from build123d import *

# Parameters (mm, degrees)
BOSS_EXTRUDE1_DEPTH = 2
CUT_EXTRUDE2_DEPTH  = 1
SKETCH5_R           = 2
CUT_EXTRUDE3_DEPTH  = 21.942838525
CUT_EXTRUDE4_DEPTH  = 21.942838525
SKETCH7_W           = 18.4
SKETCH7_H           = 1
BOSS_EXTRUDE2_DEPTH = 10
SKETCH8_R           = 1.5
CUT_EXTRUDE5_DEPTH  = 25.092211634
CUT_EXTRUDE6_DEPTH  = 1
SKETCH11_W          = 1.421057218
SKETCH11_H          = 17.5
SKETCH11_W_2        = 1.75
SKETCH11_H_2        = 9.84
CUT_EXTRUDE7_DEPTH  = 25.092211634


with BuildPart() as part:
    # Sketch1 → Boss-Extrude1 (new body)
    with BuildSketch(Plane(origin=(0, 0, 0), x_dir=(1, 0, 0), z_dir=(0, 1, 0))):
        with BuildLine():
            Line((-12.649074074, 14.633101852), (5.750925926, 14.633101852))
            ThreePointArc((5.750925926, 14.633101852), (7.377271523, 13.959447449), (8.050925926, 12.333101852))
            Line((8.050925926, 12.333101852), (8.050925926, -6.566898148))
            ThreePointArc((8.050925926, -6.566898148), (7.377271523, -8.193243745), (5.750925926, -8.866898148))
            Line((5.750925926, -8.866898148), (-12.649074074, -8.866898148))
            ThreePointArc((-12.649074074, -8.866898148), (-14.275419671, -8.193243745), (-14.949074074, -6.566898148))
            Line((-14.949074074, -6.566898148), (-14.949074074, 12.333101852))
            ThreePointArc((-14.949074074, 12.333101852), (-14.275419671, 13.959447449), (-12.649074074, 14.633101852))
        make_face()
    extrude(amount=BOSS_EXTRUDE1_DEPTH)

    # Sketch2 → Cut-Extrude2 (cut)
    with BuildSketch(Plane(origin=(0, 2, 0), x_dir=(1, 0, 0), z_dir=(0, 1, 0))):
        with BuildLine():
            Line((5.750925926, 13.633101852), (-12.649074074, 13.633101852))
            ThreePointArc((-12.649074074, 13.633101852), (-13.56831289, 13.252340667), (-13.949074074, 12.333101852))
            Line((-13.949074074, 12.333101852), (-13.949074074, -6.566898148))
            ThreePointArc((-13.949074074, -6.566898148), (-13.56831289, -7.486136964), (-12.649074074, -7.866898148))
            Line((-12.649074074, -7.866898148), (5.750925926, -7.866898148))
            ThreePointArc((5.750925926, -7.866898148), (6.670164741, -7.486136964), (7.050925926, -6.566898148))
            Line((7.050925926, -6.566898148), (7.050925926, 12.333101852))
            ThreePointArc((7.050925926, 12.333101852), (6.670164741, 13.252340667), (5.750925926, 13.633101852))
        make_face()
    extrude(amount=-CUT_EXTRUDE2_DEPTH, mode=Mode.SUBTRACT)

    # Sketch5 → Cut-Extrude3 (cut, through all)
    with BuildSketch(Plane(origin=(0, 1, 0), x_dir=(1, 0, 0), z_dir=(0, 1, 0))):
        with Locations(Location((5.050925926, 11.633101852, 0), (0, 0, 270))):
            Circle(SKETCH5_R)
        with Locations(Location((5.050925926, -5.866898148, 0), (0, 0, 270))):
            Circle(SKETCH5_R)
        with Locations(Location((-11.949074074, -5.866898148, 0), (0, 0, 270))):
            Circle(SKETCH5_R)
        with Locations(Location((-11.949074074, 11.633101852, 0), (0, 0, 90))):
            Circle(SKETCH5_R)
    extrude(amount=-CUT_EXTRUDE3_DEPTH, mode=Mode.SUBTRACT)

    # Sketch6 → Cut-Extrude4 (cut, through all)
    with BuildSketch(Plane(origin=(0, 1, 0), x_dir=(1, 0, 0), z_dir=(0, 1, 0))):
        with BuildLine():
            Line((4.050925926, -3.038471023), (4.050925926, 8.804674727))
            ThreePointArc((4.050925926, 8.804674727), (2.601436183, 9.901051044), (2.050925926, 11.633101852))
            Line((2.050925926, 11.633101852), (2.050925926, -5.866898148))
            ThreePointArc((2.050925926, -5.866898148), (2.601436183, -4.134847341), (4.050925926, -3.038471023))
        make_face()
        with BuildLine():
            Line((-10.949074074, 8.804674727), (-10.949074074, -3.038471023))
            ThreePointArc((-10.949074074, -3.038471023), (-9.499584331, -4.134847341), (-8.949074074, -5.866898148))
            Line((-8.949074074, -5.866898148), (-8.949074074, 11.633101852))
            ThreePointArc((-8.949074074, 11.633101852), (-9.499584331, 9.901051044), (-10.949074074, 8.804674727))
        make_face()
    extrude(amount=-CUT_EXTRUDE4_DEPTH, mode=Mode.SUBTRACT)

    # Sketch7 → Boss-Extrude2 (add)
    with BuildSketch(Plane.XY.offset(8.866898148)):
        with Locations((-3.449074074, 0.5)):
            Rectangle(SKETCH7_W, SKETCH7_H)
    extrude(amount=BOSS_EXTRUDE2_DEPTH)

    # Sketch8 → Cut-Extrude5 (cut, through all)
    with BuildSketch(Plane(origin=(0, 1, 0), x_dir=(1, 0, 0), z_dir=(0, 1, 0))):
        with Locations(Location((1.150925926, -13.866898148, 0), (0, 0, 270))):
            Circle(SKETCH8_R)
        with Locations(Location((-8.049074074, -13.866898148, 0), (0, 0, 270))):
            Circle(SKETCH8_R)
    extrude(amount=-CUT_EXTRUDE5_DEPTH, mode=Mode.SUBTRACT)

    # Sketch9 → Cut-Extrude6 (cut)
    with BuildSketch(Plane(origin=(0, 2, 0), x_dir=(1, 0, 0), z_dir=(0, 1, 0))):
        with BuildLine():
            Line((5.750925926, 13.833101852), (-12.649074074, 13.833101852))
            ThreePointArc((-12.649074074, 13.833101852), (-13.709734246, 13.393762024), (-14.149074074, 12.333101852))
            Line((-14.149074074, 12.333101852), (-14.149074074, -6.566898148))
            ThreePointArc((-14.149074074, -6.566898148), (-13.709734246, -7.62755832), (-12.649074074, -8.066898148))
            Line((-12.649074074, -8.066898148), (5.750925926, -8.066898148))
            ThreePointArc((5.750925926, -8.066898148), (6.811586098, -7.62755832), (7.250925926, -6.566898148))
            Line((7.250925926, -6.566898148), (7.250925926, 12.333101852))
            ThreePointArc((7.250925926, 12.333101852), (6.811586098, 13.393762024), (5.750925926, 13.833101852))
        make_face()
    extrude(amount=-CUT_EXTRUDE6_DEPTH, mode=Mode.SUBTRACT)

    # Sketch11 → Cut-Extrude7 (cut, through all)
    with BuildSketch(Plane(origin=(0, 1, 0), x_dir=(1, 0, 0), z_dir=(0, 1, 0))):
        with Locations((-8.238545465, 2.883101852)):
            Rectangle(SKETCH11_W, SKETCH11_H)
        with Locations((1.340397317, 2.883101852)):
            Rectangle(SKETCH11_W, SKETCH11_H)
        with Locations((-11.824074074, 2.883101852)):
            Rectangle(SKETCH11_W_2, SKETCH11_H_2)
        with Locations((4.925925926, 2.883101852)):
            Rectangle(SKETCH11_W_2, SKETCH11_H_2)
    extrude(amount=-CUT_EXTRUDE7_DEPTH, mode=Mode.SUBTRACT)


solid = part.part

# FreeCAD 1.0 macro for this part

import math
import FreeCAD as App
import Part
import Sketcher

V = App.Vector


def add_polygon(sketch, points):
    """Adds a closed chain of lines whose ends are joined by coincident constraints."""
    first, n = sketch.GeometryCount, len(points)
    for a, b in zip(points, points[1:] + points[:1]):
        sketch.addGeometry(Part.LineSegment(App.Vector(*a, 0), App.Vector(*b, 0)), False)
    for i in range(n):
        sketch.addConstraint(Sketcher.Constraint("Coincident", first + i, 2, first + (i + 1) % n, 1))

doc = App.newDocument("Part")
params = doc.addObject("Spreadsheet::Sheet", "Params")
for row, (alias, value) in enumerate([
    ("sketch1_radius", "2.3 mm"),
    ("sketch1_width", "18.4 mm"),
    ("sketch1_height", "18.9 mm"),
    ("pad1_length", "2 mm"),
    ("sketch2_radius", "1.3 mm"),
    ("sketch2_width", "18.4 mm"),
    ("sketch2_height", "18.9 mm"),
    ("pocket1_length", "1 mm"),
    ("sketch3_diameter", "4 mm"),
    ("sketch4_radius", "3 mm"),
    ("sketch4_height", "17.5 mm"),
    ("sketch5_height", "1 mm"),
    ("sketch5_width", "18.4 mm"),
    ("pad2_length", "10 mm"),
    ("sketch6_diameter", "3 mm"),
    ("sketch7_radius", "1.5 mm"),
    ("sketch7_width", "18.4 mm"),
    ("sketch7_height", "18.9 mm"),
    ("pocket5_length", "1 mm"),
    ("sketch8_height", "17.5 mm"),
    ("sketch8_width", "1.75 mm"),
    ("sketch8_height2", "9.84 mm"),
], start=1):
    params.set(f"A{row}", alias)
    params.set(f"B{row}", "=" + value)
    params.setAlias(f"B{row}", alias)

body = doc.addObject("PartDesign::Body", "Body")

sketch1 = body.newObject("Sketcher::SketchObject", "Sketch")
sketch1.AttachmentSupport = (doc.getObject("XZ_Plane"), [""])
sketch1.MapMode = "FlatFace"
sketch1.addGeometry([
    Part.LineSegment(V(5.750926, -14.633102, 0), V(-12.649074, -14.633102, 0)),
    Part.ArcOfCircle(Part.Circle(V(-12.649074, -12.333102, 0), V(0, 0, 1), 2.3), math.radians(180), math.radians(270)),
    Part.LineSegment(V(-14.949074, -12.333102, 0), V(-14.949074, 6.566898, 0)),
    Part.ArcOfCircle(Part.Circle(V(-12.649074, 6.566898, 0), V(0, 0, 1), 2.3), math.radians(90), math.radians(180)),
    Part.LineSegment(V(-12.649074, 8.866898, 0), V(5.750926, 8.866898, 0)),
    Part.ArcOfCircle(Part.Circle(V(5.750926, 6.566898, 0), V(0, 0, 1), 2.3), math.radians(0), math.radians(90)),
    Part.LineSegment(V(8.050926, 6.566898, 0), V(8.050926, -12.333102, 0)),
    Part.ArcOfCircle(Part.Circle(V(5.750926, -12.333102, 0), V(0, 0, 1), 2.3), math.radians(-90), math.radians(0)),
], False)
sketch1.addConstraint([
    Sketcher.Constraint("Tangent", 0, 2, 1, 2),
    Sketcher.Constraint("Tangent", 1, 1, 2, 1),
    Sketcher.Constraint("Tangent", 2, 2, 3, 2),
    Sketcher.Constraint("Tangent", 3, 1, 4, 1),
    Sketcher.Constraint("Tangent", 4, 2, 5, 2),
    Sketcher.Constraint("Tangent", 5, 1, 6, 1),
    Sketcher.Constraint("Tangent", 6, 2, 7, 2),
    Sketcher.Constraint("Tangent", 7, 1, 0, 1),
    Sketcher.Constraint("Horizontal", 0),
    Sketcher.Constraint("Vertical", 2),
    Sketcher.Constraint("Horizontal", 4),
    Sketcher.Constraint("Vertical", 6),
    Sketcher.Constraint("Equal", 1, 3),
    Sketcher.Constraint("Equal", 3, 5),
    Sketcher.Constraint("Equal", 5, 7),
    Sketcher.Constraint("Radius", 1, 2.3),
    Sketcher.Constraint("DistanceX", 0, 2, 0, 1, 18.4),
    Sketcher.Constraint("DistanceY", 2, 1, 2, 2, 18.9),
    Sketcher.Constraint("DistanceY", 1, 3, -1, 1, 12.333102),
    Sketcher.Constraint("DistanceX", 1, 3, -1, 1, 12.649074),
])
sketch1.setExpression("Constraints[15]", "Params.sketch1_radius")
sketch1.setExpression("Constraints[16]", "Params.sketch1_width")
sketch1.setExpression("Constraints[17]", "Params.sketch1_height")
pad1 = body.newObject("PartDesign::Pad", "Pad")
pad1.Profile = sketch1
pad1.setExpression("Length", "Params.pad1_length")
pad1.Reversed = True

sketch2 = body.newObject("Sketcher::SketchObject", "Sketch001")
sketch2.AttachmentSupport = (doc.getObject("XZ_Plane"), [""])
sketch2.MapMode = "FlatFace"
sketch2.AttachmentOffset = App.Placement(V(0, 0, -2), App.Rotation())
sketch2.addGeometry([
    Part.LineSegment(V(5.750926, -13.633102, 0), V(-12.649074, -13.633102, 0)),
    Part.ArcOfCircle(Part.Circle(V(-12.649074, -12.333102, 0), V(0, 0, 1), 1.3), math.radians(180), math.radians(270)),
    Part.LineSegment(V(-13.949074, -12.333102, 0), V(-13.949074, 6.566898, 0)),
    Part.ArcOfCircle(Part.Circle(V(-12.649074, 6.566898, 0), V(0, 0, 1), 1.3), math.radians(90), math.radians(180)),
    Part.LineSegment(V(-12.649074, 7.866898, 0), V(5.750926, 7.866898, 0)),
    Part.ArcOfCircle(Part.Circle(V(5.750926, 6.566898, 0), V(0, 0, 1), 1.3), math.radians(0), math.radians(90)),
    Part.LineSegment(V(7.050926, 6.566898, 0), V(7.050926, -12.333102, 0)),
    Part.ArcOfCircle(Part.Circle(V(5.750926, -12.333102, 0), V(0, 0, 1), 1.3), math.radians(-90), math.radians(0)),
], False)
sketch2.addConstraint([
    Sketcher.Constraint("Tangent", 0, 2, 1, 2),
    Sketcher.Constraint("Tangent", 1, 1, 2, 1),
    Sketcher.Constraint("Tangent", 2, 2, 3, 2),
    Sketcher.Constraint("Tangent", 3, 1, 4, 1),
    Sketcher.Constraint("Tangent", 4, 2, 5, 2),
    Sketcher.Constraint("Tangent", 5, 1, 6, 1),
    Sketcher.Constraint("Tangent", 6, 2, 7, 2),
    Sketcher.Constraint("Tangent", 7, 1, 0, 1),
    Sketcher.Constraint("Horizontal", 0),
    Sketcher.Constraint("Vertical", 2),
    Sketcher.Constraint("Horizontal", 4),
    Sketcher.Constraint("Vertical", 6),
    Sketcher.Constraint("Equal", 1, 3),
    Sketcher.Constraint("Equal", 3, 5),
    Sketcher.Constraint("Equal", 5, 7),
    Sketcher.Constraint("Radius", 1, 1.3),
    Sketcher.Constraint("DistanceX", 0, 2, 0, 1, 18.4),
    Sketcher.Constraint("DistanceY", 2, 1, 2, 2, 18.9),
    Sketcher.Constraint("DistanceY", 1, 3, -1, 1, 12.333102),
    Sketcher.Constraint("DistanceX", 1, 3, -1, 1, 12.649074),
])
sketch2.setExpression("Constraints[15]", "Params.sketch2_radius")
sketch2.setExpression("Constraints[16]", "Params.sketch2_width")
sketch2.setExpression("Constraints[17]", "Params.sketch2_height")
pocket1 = body.newObject("PartDesign::Pocket", "Pocket")
pocket1.Profile = sketch2
pocket1.setExpression("Length", "Params.pocket1_length")
pocket1.Reversed = True

sketch3 = body.newObject("Sketcher::SketchObject", "Sketch002")
sketch3.AttachmentSupport = (doc.getObject("XZ_Plane"), [""])
sketch3.MapMode = "FlatFace"
sketch3.AttachmentOffset = App.Placement(V(0, 0, -1), App.Rotation())
sketch3.addGeometry([
    Part.Circle(V(5.050926, -11.633102, 0), V(0, 0, 1), 2),
    Part.Circle(V(5.050926, 5.866898, 0), V(0, 0, 1), 2),
    Part.Circle(V(-11.949074, 5.866898, 0), V(0, 0, 1), 2),
    Part.Circle(V(-11.949074, -11.633102, 0), V(0, 0, 1), 2),
], False)
sketch3.addConstraint([
    Sketcher.Constraint("Equal", 0, 1),
    Sketcher.Constraint("Equal", 1, 2),
    Sketcher.Constraint("Equal", 2, 3),
    Sketcher.Constraint("Horizontal", 1, 3, 2, 3),
    Sketcher.Constraint("Horizontal", 0, 3, 3, 3),
    Sketcher.Constraint("Vertical", 0, 3, 1, 3),
    Sketcher.Constraint("Vertical", 2, 3, 3, 3),
    Sketcher.Constraint("Diameter", 0, 4.0),
    Sketcher.Constraint("DistanceX", 2, 3, 1, 3, 17.0),
    Sketcher.Constraint("DistanceY", 0, 3, 1, 3, 17.5),
    Sketcher.Constraint("DistanceY", 0, 3, -1, 1, 11.633102),
    Sketcher.Constraint("DistanceX", -1, 1, 0, 3, 5.050926),
])
sketch3.setExpression("Constraints[7]", "Params.sketch3_diameter")
pocket2 = body.newObject("PartDesign::Pocket", "Pocket001")
pocket2.Profile = sketch3
pocket2.Type = "ThroughAll"
pocket2.Reversed = True

sketch4 = body.newObject("Sketcher::SketchObject", "Sketch003")
sketch4.AttachmentSupport = (doc.getObject("XZ_Plane"), [""])
sketch4.MapMode = "FlatFace"
sketch4.AttachmentOffset = App.Placement(V(0, 0, -1), App.Rotation())
sketch4.addGeometry([
    Part.LineSegment(V(4.050926, 3.038471, 0), V(4.050926, -8.804675, 0)),
    Part.ArcOfCircle(Part.Circle(V(5.050926, -11.633102, 0), V(0, 0, 1), 3), math.radians(109.471221), math.radians(180)),
    Part.LineSegment(V(2.050926, -11.633102, 0), V(2.050926, 5.866898, 0)),
    Part.ArcOfCircle(Part.Circle(V(5.050926, 5.866898, 0), V(0, 0, 1), 3), math.radians(-180), math.radians(-109.471221)),
    Part.LineSegment(V(-10.949074, -8.804675, 0), V(-10.949074, 3.038471, 0)),
    Part.ArcOfCircle(Part.Circle(V(-11.949074, 5.866898, 0), V(0, 0, 1), 3), math.radians(-70.528779), math.radians(0)),
    Part.LineSegment(V(-8.949074, 5.866898, 0), V(-8.949074, -11.633102, 0)),
    Part.ArcOfCircle(Part.Circle(V(-11.949074, -11.633102, 0), V(0, 0, 1), 3), math.radians(0), math.radians(70.528779)),
], False)
sketch4.addConstraint([
    Sketcher.Constraint("Coincident", 0, 2, 1, 1),
    Sketcher.Constraint("Tangent", 1, 2, 2, 1),
    Sketcher.Constraint("Tangent", 2, 2, 3, 1),
    Sketcher.Constraint("Coincident", 3, 2, 0, 1),
    Sketcher.Constraint("Coincident", 4, 2, 5, 1),
    Sketcher.Constraint("Tangent", 5, 2, 6, 1),
    Sketcher.Constraint("Tangent", 6, 2, 7, 1),
    Sketcher.Constraint("Coincident", 7, 2, 4, 1),
    Sketcher.Constraint("Vertical", 0),
    Sketcher.Constraint("Vertical", 2),
    Sketcher.Constraint("Vertical", 4),
    Sketcher.Constraint("Vertical", 6),
    Sketcher.Constraint("Equal", 1, 3),
    Sketcher.Constraint("Equal", 3, 5),
    Sketcher.Constraint("Equal", 5, 7),
    Sketcher.Constraint("Horizontal", 3, 3, 5, 3),
    Sketcher.Constraint("Horizontal", 1, 3, 7, 3),
    Sketcher.Constraint("Horizontal", 3, 2, 4, 2),
    Sketcher.Constraint("Radius", 1, 3.0),
    Sketcher.Constraint("DistanceY", 2, 1, 2, 2, 17.5),
    Sketcher.Constraint("DistanceX", 5, 3, 3, 3, 17.0),
    Sketcher.Constraint("DistanceX", 0, 2, 1, 3, 1.0),
    Sketcher.Constraint("DistanceY", 1, 3, -1, 1, 11.633102),
    Sketcher.Constraint("DistanceX", -1, 1, 1, 3, 5.050926),
])
sketch4.setExpression("Constraints[18]", "Params.sketch4_radius")
sketch4.setExpression("Constraints[19]", "Params.sketch4_height")
pocket3 = body.newObject("PartDesign::Pocket", "Pocket002")
pocket3.Profile = sketch4
pocket3.Type = "ThroughAll"
pocket3.Reversed = True

sketch5 = body.newObject("Sketcher::SketchObject", "Sketch004")
sketch5.AttachmentSupport = (doc.getObject("XY_Plane"), [""])
sketch5.MapMode = "FlatFace"
sketch5.AttachmentOffset = App.Placement(V(0, 0, 8.866898), App.Rotation())
add_polygon(sketch5, [(-12.649074, 1), (-12.649074, 0), (5.750926, 0), (5.750926, 1)])
sketch5.addConstraint([
    Sketcher.Constraint("Vertical", 0),
    Sketcher.Constraint("Horizontal", 1),
    Sketcher.Constraint("Vertical", 2),
    Sketcher.Constraint("Horizontal", 3),
    Sketcher.Constraint("PointOnObject", 0, 2, -1),
    Sketcher.Constraint("DistanceY", 0, 2, 0, 1, 1.0),
    Sketcher.Constraint("DistanceX", 1, 1, 1, 2, 18.4),
    Sketcher.Constraint("DistanceX", 0, 2, -1, 1, 12.649074),
])
sketch5.setExpression("Constraints[9]", "Params.sketch5_height")
sketch5.setExpression("Constraints[10]", "Params.sketch5_width")
pad2 = body.newObject("PartDesign::Pad", "Pad001")
pad2.Profile = sketch5
pad2.setExpression("Length", "Params.pad2_length")

sketch6 = body.newObject("Sketcher::SketchObject", "Sketch005")
sketch6.AttachmentSupport = (doc.getObject("XZ_Plane"), [""])
sketch6.MapMode = "FlatFace"
sketch6.AttachmentOffset = App.Placement(V(0, 0, -1), App.Rotation())
sketch6.addGeometry([
    Part.Circle(V(1.150926, 13.866898, 0), V(0, 0, 1), 1.5),
    Part.Circle(V(-8.049074, 13.866898, 0), V(0, 0, 1), 1.5),
], False)
sketch6.addConstraint([
    Sketcher.Constraint("Equal", 0, 1),
    Sketcher.Constraint("Horizontal", 0, 3, 1, 3),
    Sketcher.Constraint("Diameter", 0, 3.0),
    Sketcher.Constraint("DistanceX", 1, 3, 0, 3, 9.2),
    Sketcher.Constraint("DistanceY", -1, 1, 0, 3, 13.866898),
    Sketcher.Constraint("DistanceX", -1, 1, 0, 3, 1.150926),
])
sketch6.setExpression("Constraints[2]", "Params.sketch6_diameter")
pocket4 = body.newObject("PartDesign::Pocket", "Pocket003")
pocket4.Profile = sketch6
pocket4.Type = "ThroughAll"
pocket4.Reversed = True

sketch7 = body.newObject("Sketcher::SketchObject", "Sketch006")
sketch7.AttachmentSupport = (doc.getObject("XZ_Plane"), [""])
sketch7.MapMode = "FlatFace"
sketch7.AttachmentOffset = App.Placement(V(0, 0, -2), App.Rotation())
sketch7.addGeometry([
    Part.LineSegment(V(5.750926, -13.833102, 0), V(-12.649074, -13.833102, 0)),
    Part.ArcOfCircle(Part.Circle(V(-12.649074, -12.333102, 0), V(0, 0, 1), 1.5), math.radians(180), math.radians(270)),
    Part.LineSegment(V(-14.149074, -12.333102, 0), V(-14.149074, 6.566898, 0)),
    Part.ArcOfCircle(Part.Circle(V(-12.649074, 6.566898, 0), V(0, 0, 1), 1.5), math.radians(90), math.radians(180)),
    Part.LineSegment(V(-12.649074, 8.066898, 0), V(5.750926, 8.066898, 0)),
    Part.ArcOfCircle(Part.Circle(V(5.750926, 6.566898, 0), V(0, 0, 1), 1.5), math.radians(0), math.radians(90)),
    Part.LineSegment(V(7.250926, 6.566898, 0), V(7.250926, -12.333102, 0)),
    Part.ArcOfCircle(Part.Circle(V(5.750926, -12.333102, 0), V(0, 0, 1), 1.5), math.radians(-90), math.radians(0)),
], False)
sketch7.addConstraint([
    Sketcher.Constraint("Tangent", 0, 2, 1, 2),
    Sketcher.Constraint("Tangent", 1, 1, 2, 1),
    Sketcher.Constraint("Tangent", 2, 2, 3, 2),
    Sketcher.Constraint("Tangent", 3, 1, 4, 1),
    Sketcher.Constraint("Tangent", 4, 2, 5, 2),
    Sketcher.Constraint("Tangent", 5, 1, 6, 1),
    Sketcher.Constraint("Tangent", 6, 2, 7, 2),
    Sketcher.Constraint("Tangent", 7, 1, 0, 1),
    Sketcher.Constraint("Horizontal", 0),
    Sketcher.Constraint("Vertical", 2),
    Sketcher.Constraint("Horizontal", 4),
    Sketcher.Constraint("Vertical", 6),
    Sketcher.Constraint("Equal", 1, 3),
    Sketcher.Constraint("Equal", 3, 5),
    Sketcher.Constraint("Equal", 5, 7),
    Sketcher.Constraint("Radius", 1, 1.5),
    Sketcher.Constraint("DistanceX", 0, 2, 0, 1, 18.4),
    Sketcher.Constraint("DistanceY", 2, 1, 2, 2, 18.9),
    Sketcher.Constraint("DistanceY", 1, 3, -1, 1, 12.333102),
    Sketcher.Constraint("DistanceX", 1, 3, -1, 1, 12.649074),
])
sketch7.setExpression("Constraints[15]", "Params.sketch7_radius")
sketch7.setExpression("Constraints[16]", "Params.sketch7_width")
sketch7.setExpression("Constraints[17]", "Params.sketch7_height")
pocket5 = body.newObject("PartDesign::Pocket", "Pocket004")
pocket5.Profile = sketch7
pocket5.setExpression("Length", "Params.pocket5_length")
pocket5.Reversed = True

sketch8 = body.newObject("Sketcher::SketchObject", "Sketch007")
sketch8.AttachmentSupport = (doc.getObject("XZ_Plane"), [""])
sketch8.MapMode = "FlatFace"
sketch8.AttachmentOffset = App.Placement(V(0, 0, -1), App.Rotation())
add_polygon(sketch8, [(-8.949074, -11.633102), (-8.949074, 5.866898), (-7.528017, 5.866898), (-7.528017, -11.633102)])
add_polygon(sketch8, [(0.629869, -11.633102), (0.629869, 5.866898), (2.050926, 5.866898), (2.050926, -11.633102)])
add_polygon(sketch8, [(-12.699074, -7.803102), (-12.699074, 2.036898), (-10.949074, 2.036898), (-10.949074, -7.803102)])
add_polygon(sketch8, [(4.050926, -7.803102), (4.050926, 2.036898), (5.800926, 2.036898), (5.800926, -7.803102)])
sketch8.addConstraint([
    Sketcher.Constraint("Vertical", 0),
    Sketcher.Constraint("Horizontal", 1),
    Sketcher.Constraint("Vertical", 2),
    Sketcher.Constraint("Horizontal", 3),
    Sketcher.Constraint("Vertical", 4),
    Sketcher.Constraint("Horizontal", 5),
    Sketcher.Constraint("Vertical", 6),
    Sketcher.Constraint("Horizontal", 7),
    Sketcher.Constraint("Vertical", 8),
    Sketcher.Constraint("Horizontal", 9),
    Sketcher.Constraint("Vertical", 10),
    Sketcher.Constraint("Horizontal", 11),
    Sketcher.Constraint("Vertical", 12),
    Sketcher.Constraint("Horizontal", 13),
    Sketcher.Constraint("Vertical", 14),
    Sketcher.Constraint("Horizontal", 15),
    Sketcher.Constraint("Horizontal", 1, 2, 4, 2),
    Sketcher.Constraint("Horizontal", 3, 2, 6, 2),
    Sketcher.Constraint("Horizontal", 9, 2, 12, 2),
    Sketcher.Constraint("Horizontal", 11, 2, 14, 2),
    Sketcher.Constraint("Equal", 3, 5),
    Sketcher.Constraint("Equal", 11, 13),
    Sketcher.Constraint("DistanceY", 0, 1, 0, 2, 17.5),
    Sketcher.Constraint("DistanceX", 0, 2, 5, 2, 11.0),
    Sketcher.Constraint("DistanceX", 9, 2, 0, 2, 2.0),
    Sketcher.Constraint("DistanceX", 5, 2, 12, 2, 2.0),
    Sketcher.Constraint("DistanceX", 9, 1, 9, 2, 1.75),
    Sketcher.Constraint("DistanceY", 8, 1, 8, 2, 9.84),
    Sketcher.Constraint("DistanceY", 8, 2, 0, 2, 3.83),
    Sketcher.Constraint("DistanceY", -1, 1, 0, 2, 5.866898),
    Sketcher.Constraint("DistanceX", 1, 1, 1, 2, 1.421057),
    Sketcher.Constraint("DistanceX", -1, 1, 4, 2, 0.629869),
])
sketch8.setExpression("Constraints[38]", "Params.sketch8_height")
sketch8.setExpression("Constraints[42]", "Params.sketch8_width")
sketch8.setExpression("Constraints[43]", "Params.sketch8_height2")
pocket6 = body.newObject("PartDesign::Pocket", "Pocket005")
pocket6.Profile = sketch8
pocket6.Type = "ThroughAll"
pocket6.Reversed = True

doc.recompute()
